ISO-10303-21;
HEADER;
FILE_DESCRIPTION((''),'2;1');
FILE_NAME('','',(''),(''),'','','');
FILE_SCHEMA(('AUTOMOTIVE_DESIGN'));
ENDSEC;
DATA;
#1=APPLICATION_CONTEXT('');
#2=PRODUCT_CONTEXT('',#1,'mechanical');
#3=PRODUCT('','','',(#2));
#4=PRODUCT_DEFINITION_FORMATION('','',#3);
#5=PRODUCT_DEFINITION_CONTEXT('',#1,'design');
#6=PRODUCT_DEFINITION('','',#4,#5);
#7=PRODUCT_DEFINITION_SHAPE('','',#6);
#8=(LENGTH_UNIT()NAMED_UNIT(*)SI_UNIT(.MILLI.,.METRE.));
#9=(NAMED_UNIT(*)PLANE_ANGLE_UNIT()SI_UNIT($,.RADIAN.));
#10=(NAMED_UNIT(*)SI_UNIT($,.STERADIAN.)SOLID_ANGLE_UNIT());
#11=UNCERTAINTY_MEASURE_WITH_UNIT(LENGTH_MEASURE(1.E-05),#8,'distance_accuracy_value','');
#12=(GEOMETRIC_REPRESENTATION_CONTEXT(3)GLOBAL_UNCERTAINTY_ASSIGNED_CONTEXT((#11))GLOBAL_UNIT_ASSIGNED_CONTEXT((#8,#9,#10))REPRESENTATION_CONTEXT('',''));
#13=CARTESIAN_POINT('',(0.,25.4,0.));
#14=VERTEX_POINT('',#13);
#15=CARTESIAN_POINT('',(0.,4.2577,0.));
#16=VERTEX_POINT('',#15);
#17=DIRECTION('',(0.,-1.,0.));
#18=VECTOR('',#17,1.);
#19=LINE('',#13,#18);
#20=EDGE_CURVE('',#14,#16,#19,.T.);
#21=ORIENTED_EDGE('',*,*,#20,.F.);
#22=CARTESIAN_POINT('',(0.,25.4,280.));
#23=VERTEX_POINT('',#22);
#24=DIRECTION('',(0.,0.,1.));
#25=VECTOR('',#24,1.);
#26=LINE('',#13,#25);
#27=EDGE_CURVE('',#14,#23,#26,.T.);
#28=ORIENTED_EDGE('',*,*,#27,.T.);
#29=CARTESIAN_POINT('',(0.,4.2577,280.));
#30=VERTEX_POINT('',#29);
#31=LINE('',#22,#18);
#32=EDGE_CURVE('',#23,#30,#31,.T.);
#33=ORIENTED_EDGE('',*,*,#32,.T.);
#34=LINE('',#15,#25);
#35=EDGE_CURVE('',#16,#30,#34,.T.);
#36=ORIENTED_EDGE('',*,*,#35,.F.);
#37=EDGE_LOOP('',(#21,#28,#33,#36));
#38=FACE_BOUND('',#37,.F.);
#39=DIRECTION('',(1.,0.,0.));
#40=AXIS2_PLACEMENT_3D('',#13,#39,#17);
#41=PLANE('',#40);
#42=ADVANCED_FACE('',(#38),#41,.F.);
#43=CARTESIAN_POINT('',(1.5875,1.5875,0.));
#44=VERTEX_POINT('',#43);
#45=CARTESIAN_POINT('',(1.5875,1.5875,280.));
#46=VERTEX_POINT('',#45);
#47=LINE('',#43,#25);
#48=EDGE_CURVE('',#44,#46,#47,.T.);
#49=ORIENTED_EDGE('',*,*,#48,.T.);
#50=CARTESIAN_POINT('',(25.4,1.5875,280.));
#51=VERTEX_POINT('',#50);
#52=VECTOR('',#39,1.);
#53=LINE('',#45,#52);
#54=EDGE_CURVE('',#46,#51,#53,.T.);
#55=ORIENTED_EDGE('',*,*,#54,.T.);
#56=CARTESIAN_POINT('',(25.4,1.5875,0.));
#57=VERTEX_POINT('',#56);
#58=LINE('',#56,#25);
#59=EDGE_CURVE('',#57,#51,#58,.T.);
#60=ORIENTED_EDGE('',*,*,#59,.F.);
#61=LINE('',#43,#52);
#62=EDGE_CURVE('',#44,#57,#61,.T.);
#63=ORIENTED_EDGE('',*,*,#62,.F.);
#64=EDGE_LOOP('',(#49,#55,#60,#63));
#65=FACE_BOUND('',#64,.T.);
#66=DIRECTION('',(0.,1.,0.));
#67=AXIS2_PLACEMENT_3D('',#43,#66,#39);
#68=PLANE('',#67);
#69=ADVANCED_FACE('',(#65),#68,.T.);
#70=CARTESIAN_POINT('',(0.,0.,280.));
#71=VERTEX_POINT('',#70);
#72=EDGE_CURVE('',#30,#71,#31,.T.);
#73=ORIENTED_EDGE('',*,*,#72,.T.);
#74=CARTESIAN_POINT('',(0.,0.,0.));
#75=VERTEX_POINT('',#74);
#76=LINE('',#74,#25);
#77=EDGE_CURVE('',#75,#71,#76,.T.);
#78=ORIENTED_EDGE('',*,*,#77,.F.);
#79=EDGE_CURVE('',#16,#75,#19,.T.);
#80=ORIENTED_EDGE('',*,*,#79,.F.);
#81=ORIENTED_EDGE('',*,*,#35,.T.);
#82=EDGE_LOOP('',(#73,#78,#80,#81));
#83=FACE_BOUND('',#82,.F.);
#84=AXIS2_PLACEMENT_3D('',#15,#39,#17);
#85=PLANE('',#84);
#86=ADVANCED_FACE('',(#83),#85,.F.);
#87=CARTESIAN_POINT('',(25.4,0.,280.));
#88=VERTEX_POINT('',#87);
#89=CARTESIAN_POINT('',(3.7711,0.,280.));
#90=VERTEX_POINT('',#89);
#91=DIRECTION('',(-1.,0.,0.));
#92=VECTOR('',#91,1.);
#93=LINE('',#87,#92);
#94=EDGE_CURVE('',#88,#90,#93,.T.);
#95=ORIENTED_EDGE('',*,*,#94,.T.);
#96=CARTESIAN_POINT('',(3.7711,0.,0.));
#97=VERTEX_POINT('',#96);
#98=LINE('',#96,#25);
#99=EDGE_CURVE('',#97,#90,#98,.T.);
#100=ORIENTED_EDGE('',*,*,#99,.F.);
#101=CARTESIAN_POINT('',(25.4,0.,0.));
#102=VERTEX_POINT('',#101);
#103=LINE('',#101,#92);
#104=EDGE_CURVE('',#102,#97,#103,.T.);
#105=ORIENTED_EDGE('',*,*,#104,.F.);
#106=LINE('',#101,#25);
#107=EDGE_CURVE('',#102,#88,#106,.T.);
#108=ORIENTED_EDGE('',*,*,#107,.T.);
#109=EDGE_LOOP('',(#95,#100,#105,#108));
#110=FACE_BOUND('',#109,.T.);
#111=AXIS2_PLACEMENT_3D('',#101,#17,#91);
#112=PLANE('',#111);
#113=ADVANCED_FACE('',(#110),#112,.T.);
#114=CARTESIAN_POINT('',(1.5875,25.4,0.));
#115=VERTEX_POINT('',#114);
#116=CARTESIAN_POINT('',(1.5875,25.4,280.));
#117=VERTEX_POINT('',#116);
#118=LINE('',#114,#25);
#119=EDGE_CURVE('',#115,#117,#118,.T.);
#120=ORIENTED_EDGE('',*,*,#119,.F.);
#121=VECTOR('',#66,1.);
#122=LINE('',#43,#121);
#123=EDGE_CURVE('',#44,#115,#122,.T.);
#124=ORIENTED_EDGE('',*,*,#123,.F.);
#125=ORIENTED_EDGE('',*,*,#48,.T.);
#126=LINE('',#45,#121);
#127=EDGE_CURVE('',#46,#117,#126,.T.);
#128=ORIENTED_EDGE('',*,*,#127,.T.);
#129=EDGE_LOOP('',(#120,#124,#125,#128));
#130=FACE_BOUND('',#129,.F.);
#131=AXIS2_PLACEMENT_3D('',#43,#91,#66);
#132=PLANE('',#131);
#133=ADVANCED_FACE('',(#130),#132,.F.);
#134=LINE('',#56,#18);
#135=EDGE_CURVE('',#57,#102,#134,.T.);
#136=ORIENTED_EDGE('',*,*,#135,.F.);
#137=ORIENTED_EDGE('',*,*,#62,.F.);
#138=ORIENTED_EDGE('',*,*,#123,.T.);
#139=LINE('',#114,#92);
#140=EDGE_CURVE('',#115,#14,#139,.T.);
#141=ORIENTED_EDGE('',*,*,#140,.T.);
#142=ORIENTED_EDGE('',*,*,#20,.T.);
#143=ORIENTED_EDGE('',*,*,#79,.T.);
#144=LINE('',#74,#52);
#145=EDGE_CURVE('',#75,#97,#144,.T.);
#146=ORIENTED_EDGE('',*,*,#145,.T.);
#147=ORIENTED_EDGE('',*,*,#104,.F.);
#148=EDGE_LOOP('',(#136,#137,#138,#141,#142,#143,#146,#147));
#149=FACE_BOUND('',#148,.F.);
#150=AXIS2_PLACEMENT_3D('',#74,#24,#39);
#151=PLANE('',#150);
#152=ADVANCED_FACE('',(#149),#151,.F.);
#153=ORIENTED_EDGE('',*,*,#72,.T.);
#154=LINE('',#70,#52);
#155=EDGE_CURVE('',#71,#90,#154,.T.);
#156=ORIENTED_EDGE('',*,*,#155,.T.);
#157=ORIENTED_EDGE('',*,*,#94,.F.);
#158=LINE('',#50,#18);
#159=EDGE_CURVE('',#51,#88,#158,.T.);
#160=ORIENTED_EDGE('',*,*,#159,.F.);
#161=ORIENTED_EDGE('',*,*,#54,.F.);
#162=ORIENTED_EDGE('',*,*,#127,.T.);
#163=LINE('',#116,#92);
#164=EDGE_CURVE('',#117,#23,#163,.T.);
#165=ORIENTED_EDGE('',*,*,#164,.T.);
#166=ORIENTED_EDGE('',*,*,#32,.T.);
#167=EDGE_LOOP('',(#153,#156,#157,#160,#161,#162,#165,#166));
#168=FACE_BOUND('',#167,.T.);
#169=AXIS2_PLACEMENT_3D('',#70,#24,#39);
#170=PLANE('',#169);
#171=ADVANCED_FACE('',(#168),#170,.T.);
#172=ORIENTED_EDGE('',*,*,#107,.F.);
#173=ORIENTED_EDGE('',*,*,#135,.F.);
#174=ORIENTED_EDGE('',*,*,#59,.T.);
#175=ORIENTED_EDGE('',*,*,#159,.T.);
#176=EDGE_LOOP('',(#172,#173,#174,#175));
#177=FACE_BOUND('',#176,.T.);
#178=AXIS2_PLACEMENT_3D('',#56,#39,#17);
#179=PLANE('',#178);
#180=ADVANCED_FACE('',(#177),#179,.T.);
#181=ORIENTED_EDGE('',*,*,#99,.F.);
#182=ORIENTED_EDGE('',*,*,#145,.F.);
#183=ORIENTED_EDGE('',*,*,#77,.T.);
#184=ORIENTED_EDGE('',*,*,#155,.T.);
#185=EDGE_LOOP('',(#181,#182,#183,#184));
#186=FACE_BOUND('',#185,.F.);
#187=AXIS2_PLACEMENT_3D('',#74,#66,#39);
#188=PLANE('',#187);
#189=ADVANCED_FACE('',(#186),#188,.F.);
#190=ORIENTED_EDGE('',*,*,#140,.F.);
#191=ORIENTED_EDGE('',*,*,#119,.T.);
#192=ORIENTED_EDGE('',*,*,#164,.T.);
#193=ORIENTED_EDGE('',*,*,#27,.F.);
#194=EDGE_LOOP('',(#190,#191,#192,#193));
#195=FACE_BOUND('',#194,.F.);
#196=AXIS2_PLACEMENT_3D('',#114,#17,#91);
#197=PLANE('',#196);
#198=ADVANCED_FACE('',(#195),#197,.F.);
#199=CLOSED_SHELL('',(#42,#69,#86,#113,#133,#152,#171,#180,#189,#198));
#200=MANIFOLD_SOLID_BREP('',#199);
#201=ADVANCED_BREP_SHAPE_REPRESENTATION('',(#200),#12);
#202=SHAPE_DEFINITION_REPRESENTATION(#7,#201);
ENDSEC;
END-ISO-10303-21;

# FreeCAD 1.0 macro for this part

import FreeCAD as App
import Part
import Sketcher
Q = App.Units.Quantity


def add_polygon(sketch, points):
    """Adds a closed chain of lines whose ends are joined by coincident constraints."""
    first, n = sketch.GeometryCount, len(points)
    for a, b in zip(points, points[1:] + points[:1]):
        sketch.addGeometry(Part.LineSegment(App.Vector(*a, 0), App.Vector(*b, 0)), False)
    for i in range(n):
        sketch.addConstraint(Sketcher.Constraint("Coincident", first + i, 2, first + (i + 1) % n, 1))

doc = App.newDocument("Part")
body = doc.addObject("PartDesign::Body", "Body")

sketch1 = body.newObject("Sketcher::SketchObject", "Sketch")
sketch1.AttachmentSupport = (doc.getObject("XY_Plane"), [""])
sketch1.MapMode = "FlatFace"
add_polygon(sketch1, [(0, 25.4), (0, 0), (25.4, 0), (25.4, 1.6), (1.6, 1.6), (1.6, 25.4)])
sketch1.addConstraint([
    Sketcher.Constraint("Vertical", 0),
    Sketcher.Constraint("Horizontal", 1),
    Sketcher.Constraint("Vertical", 2),
    Sketcher.Constraint("Horizontal", 3),
    Sketcher.Constraint("Vertical", 4),
    Sketcher.Constraint("Horizontal", 5),
    Sketcher.Constraint("Coincident", 0, 2, -1, 1),
    Sketcher.Constraint("Equal", 1, 0),
    Sketcher.Constraint("Equal", 5, 2),
    Sketcher.Constraint("DistanceX", 1, 1, 1, 2, Q("1 in")),
    Sketcher.Constraint("DistanceX", 5, 2, 5, 1, Q("0.0625 in")),
])
pad1 = body.newObject("PartDesign::Pad", "Pad")
pad1.Profile = sketch1
pad1.Length = 280

doc.recompute()
